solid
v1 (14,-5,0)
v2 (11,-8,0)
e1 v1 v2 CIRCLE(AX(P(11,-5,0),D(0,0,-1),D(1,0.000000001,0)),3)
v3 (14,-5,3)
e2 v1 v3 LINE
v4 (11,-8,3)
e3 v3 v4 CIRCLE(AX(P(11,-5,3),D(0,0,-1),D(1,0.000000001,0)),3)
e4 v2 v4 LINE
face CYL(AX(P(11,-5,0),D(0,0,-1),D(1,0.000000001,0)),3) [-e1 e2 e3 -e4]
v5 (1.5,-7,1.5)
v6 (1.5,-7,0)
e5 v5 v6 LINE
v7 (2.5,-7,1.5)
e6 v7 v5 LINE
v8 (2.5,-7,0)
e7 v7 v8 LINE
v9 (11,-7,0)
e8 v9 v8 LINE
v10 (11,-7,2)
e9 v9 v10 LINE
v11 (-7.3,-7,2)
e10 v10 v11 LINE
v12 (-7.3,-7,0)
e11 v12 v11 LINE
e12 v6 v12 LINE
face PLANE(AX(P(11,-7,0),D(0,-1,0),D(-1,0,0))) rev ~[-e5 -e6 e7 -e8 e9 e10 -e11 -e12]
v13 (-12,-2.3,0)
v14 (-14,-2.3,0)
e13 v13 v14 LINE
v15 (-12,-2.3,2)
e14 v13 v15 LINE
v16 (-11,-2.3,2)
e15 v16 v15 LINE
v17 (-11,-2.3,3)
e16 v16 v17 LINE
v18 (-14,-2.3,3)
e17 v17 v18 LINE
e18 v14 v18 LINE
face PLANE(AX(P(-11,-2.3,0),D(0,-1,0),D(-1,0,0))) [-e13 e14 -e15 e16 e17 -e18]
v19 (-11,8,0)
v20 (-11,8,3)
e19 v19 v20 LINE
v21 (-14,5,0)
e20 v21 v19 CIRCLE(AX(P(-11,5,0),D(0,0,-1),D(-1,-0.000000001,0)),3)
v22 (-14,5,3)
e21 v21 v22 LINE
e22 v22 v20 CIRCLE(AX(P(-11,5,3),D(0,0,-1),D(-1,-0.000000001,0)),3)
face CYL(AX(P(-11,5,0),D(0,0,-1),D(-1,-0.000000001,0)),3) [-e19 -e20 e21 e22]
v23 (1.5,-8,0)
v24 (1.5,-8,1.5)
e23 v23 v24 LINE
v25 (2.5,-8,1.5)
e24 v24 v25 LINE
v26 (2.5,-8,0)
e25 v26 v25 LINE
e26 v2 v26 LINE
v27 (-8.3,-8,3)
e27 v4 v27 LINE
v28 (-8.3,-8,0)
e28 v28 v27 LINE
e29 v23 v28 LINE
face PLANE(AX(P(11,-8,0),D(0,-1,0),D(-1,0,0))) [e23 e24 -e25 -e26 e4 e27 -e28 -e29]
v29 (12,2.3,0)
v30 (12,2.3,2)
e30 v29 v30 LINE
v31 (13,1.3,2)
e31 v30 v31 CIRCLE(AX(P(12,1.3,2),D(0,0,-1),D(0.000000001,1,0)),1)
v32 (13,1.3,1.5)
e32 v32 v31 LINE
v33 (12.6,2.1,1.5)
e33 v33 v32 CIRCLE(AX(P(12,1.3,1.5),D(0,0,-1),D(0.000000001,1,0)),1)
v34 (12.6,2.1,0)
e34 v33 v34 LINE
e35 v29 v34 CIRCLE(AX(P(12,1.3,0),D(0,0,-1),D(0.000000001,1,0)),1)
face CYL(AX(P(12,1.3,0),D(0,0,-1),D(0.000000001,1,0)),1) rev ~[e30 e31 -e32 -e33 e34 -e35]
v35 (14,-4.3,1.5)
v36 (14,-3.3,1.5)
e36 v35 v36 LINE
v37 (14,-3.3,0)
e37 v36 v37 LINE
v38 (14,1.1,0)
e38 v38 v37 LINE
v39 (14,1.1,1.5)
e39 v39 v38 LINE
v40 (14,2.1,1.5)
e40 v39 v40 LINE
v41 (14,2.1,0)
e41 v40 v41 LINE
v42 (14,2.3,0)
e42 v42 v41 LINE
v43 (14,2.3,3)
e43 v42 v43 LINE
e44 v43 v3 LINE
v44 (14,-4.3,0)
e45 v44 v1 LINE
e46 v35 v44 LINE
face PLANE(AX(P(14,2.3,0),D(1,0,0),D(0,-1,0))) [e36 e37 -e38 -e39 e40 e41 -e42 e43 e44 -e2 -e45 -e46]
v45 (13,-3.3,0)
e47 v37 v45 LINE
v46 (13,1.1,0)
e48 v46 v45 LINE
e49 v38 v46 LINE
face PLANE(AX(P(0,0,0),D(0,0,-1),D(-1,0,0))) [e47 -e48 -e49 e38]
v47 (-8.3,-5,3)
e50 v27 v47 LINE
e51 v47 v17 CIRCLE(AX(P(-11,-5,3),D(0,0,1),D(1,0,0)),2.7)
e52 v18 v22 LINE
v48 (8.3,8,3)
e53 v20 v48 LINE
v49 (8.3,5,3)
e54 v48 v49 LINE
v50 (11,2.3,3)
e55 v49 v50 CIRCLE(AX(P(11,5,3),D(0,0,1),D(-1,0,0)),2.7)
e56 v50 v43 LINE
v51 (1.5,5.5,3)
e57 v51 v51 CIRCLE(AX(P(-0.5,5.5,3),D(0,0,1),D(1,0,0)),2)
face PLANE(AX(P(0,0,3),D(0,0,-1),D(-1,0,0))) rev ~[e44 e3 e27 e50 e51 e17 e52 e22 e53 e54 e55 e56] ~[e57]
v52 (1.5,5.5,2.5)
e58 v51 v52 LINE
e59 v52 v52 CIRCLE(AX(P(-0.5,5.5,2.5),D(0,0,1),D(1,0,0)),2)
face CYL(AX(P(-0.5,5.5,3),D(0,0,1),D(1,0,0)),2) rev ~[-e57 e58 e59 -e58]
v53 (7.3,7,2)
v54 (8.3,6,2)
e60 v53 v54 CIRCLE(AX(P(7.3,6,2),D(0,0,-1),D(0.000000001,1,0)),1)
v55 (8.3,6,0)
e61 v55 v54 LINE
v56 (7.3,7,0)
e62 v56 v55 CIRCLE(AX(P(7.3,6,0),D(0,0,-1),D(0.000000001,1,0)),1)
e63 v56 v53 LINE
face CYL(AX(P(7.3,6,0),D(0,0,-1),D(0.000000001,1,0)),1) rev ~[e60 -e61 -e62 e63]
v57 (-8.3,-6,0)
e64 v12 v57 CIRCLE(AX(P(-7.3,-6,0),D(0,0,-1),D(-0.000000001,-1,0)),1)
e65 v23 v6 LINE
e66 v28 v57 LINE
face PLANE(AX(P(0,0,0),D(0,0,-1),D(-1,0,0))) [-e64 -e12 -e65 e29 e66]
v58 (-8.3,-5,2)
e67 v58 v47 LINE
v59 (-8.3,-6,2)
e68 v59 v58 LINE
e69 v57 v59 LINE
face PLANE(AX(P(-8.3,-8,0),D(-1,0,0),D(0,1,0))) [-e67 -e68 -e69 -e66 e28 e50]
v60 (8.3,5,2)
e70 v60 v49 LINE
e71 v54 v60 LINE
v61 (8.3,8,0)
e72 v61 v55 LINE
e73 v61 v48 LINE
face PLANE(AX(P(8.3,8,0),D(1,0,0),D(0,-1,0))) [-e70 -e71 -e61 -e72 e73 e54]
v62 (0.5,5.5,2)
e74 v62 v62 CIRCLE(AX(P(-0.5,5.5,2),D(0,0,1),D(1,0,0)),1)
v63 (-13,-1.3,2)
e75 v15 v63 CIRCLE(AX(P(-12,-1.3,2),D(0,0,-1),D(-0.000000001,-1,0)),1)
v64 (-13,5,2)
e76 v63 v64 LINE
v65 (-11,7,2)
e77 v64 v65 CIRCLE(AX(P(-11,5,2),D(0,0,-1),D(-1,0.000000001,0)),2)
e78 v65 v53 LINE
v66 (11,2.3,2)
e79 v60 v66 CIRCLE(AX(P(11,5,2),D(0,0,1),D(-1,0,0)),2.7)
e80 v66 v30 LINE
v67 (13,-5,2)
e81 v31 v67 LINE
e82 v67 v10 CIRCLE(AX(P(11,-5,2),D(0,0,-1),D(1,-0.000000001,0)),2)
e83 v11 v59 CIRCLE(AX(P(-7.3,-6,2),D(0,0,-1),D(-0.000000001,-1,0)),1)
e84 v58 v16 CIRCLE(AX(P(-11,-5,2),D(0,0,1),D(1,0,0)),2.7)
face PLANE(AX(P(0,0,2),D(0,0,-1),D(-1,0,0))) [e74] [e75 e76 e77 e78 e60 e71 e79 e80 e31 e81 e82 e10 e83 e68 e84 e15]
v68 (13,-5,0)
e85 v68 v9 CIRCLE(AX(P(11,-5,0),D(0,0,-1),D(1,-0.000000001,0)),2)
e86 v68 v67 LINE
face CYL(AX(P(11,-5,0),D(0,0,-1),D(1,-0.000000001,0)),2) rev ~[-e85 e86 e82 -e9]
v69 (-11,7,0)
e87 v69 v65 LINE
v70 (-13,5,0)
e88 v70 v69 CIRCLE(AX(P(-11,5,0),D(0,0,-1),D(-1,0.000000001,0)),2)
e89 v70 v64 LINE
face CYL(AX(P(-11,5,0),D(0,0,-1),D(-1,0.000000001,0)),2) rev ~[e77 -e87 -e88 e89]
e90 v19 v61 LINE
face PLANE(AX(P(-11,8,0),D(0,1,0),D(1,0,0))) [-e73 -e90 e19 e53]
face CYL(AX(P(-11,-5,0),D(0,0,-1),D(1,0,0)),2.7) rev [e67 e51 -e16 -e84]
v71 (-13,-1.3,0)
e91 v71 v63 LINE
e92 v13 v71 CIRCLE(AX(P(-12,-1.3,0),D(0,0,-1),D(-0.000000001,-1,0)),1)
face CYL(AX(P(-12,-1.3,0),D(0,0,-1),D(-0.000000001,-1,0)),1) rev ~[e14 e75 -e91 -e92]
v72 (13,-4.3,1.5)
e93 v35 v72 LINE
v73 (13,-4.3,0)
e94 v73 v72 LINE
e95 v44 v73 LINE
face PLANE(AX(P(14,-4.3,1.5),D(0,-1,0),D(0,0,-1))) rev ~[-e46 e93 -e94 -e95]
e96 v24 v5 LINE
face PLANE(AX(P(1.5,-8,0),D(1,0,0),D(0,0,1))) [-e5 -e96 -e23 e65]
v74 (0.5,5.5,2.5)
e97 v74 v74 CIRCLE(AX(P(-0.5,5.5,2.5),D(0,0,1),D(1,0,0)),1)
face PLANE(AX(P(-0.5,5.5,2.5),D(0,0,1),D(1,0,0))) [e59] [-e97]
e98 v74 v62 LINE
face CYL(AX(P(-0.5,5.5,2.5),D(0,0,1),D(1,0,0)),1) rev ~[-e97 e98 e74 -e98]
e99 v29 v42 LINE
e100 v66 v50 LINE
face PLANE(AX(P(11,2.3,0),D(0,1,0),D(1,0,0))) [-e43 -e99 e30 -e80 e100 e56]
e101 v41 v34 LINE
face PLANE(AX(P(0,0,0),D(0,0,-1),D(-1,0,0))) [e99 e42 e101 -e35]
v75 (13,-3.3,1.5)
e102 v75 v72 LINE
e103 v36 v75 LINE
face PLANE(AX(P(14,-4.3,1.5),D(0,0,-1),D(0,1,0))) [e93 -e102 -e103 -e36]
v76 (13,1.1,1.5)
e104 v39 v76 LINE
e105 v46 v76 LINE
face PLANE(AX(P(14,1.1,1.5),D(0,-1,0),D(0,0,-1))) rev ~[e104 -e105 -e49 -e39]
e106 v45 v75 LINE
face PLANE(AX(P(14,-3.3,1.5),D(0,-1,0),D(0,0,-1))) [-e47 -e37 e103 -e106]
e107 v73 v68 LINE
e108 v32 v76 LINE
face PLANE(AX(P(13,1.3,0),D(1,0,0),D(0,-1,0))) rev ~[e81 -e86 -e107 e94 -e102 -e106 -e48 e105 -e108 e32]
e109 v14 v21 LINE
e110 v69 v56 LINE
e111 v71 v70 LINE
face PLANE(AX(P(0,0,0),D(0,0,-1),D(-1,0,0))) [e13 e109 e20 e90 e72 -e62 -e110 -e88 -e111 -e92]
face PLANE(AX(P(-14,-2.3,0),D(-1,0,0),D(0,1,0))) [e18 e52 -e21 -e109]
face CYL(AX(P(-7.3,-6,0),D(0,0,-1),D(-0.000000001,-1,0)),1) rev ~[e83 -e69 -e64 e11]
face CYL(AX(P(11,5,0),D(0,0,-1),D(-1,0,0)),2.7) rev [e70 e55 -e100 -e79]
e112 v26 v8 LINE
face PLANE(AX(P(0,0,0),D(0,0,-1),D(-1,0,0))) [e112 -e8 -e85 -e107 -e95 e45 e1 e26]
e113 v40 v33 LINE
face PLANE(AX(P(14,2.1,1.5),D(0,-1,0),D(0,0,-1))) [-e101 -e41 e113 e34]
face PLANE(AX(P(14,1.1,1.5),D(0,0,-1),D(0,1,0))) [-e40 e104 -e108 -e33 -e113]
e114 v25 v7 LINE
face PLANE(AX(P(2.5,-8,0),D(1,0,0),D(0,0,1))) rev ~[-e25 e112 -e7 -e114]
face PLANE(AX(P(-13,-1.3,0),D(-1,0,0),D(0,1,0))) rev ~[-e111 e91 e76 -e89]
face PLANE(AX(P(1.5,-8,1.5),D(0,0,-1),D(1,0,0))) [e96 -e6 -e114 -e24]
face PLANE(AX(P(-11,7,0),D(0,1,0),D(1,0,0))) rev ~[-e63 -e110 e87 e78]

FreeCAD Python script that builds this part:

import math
import FreeCAD as App
import Part
import Sketcher

doc = App.newDocument("Part")
params = doc.addObject("Spreadsheet::Sheet", "Params")
for row, (alias, value) in enumerate([
    ("sketch1_radius", "3 mm"),
    ("sketch1_radius2", "2.7 mm"),
    ("sketch1_width", "19.3 mm"),
    ("sketch1_height", "7.3 mm"),
    ("pad1_length", "3 mm"),
    ("sketch2_radius", "1 mm"),
    ("sketch2_radius2", "2 mm"),
    ("sketch2_radius3", "2.7 mm"),
    ("sketch2_width", "18.3 mm"),
    ("sketch2_height", "6.3 mm"),
    ("pocket1_length", "2 mm"),
    ("sketch3_width", "1 mm"),
    ("sketch3_height", "1.5 mm"),
    ("pocket2_length", "1.4 mm"),
    ("sketch4_width", "1 mm"),
    ("sketch4_height", "1.5 mm"),
    ("sketch5_width", "1 mm"),
    ("sketch5_height", "1.5 mm"),
    ("sketch6_diameter", "4 mm"),
    ("pocket5_length", "0.5 mm"),
    ("sketch7_diameter", "2 mm"),
], start=1):
    params.set(f"A{row}", alias)
    params.set(f"B{row}", "=" + value)
    params.setAlias(f"B{row}", alias)

body = doc.addObject("PartDesign::Body", "Body")

# Sketch on XY plane
sketch1 = body.newObject("Sketcher::SketchObject", "Sketch")
sketch1.AttachmentSupport = (doc.getObject("XY_Plane"), [""])
sketch1.MapMode = "FlatFace"
sketch1.addGeometry([
    Part.LineSegment(App.Vector(8.3, 8, 0), App.Vector(-11, 8, 0)),  # 0
    Part.ArcOfCircle(Part.Circle(App.Vector(-11, 5, 0), App.Vector(0, 0, 1), 3), math.radians(90), math.radians(180)),  # 1
    Part.LineSegment(App.Vector(-14, 5, 0), App.Vector(-14, -2.3, 0)),  # 2
    Part.LineSegment(App.Vector(-14, -2.3, 0), App.Vector(-11, -2.3, 0)),  # 3
    Part.ArcOfCircle(Part.Circle(App.Vector(-11, -5, 0), App.Vector(0, 0, 1), 2.7), math.radians(0), math.radians(90)),  # 4
    Part.LineSegment(App.Vector(-8.3, -5, 0), App.Vector(-8.3, -8, 0)),  # 5
    Part.LineSegment(App.Vector(-8.3, -8, 0), App.Vector(11, -8, 0)),  # 6
    Part.ArcOfCircle(Part.Circle(App.Vector(11, -5, 0), App.Vector(0, 0, 1), 3), math.radians(-90), math.radians(0)),  # 7
    Part.LineSegment(App.Vector(14, -5, 0), App.Vector(14, 2.3, 0)),  # 8
    Part.LineSegment(App.Vector(14, 2.3, 0), App.Vector(11, 2.3, 0)),  # 9
    Part.ArcOfCircle(Part.Circle(App.Vector(11, 5, 0), App.Vector(0, 0, 1), 2.7), math.radians(-180), math.radians(-90)),  # 10
    Part.LineSegment(App.Vector(8.3, 5, 0), App.Vector(8.3, 8, 0)),  # 11
], False)
sketch1.addConstraint([
    Sketcher.Constraint("Tangent", 0, 2, 1, 1),
    Sketcher.Constraint("Tangent", 1, 2, 2, 1),
    Sketcher.Constraint("Coincident", 2, 2, 3, 1),
    Sketcher.Constraint("Tangent", 3, 2, 4, 2),
    Sketcher.Constraint("Tangent", 4, 1, 5, 1),
    Sketcher.Constraint("Coincident", 5, 2, 6, 1),
    Sketcher.Constraint("Tangent", 6, 2, 7, 1),
    Sketcher.Constraint("Tangent", 7, 2, 8, 1),
    Sketcher.Constraint("Coincident", 8, 2, 9, 1),
    Sketcher.Constraint("Tangent", 9, 2, 10, 2),
    Sketcher.Constraint("Tangent", 10, 1, 11, 1),
    Sketcher.Constraint("Coincident", 11, 2, 0, 1),
    Sketcher.Constraint("Horizontal", 0),
    Sketcher.Constraint("Vertical", 2),
    Sketcher.Constraint("Horizontal", 3),
    Sketcher.Constraint("Vertical", 5),
    Sketcher.Constraint("Horizontal", 6),
    Sketcher.Constraint("Vertical", 8),
    Sketcher.Constraint("Horizontal", 9),
    Sketcher.Constraint("Vertical", 11),
    Sketcher.Constraint("Equal", 1, 7),
    Sketcher.Constraint("Equal", 4, 10),
    Sketcher.Constraint("Symmetric", 1, 3, 7, 3, -1, 1),
    Sketcher.Constraint("Symmetric", 4, 3, 10, 3, -1, 1),
    Sketcher.Constraint("Symmetric", 4, 3, 7, 3, -2),
    Sketcher.Constraint("Radius", 1, 3.0),
    Sketcher.Constraint("Radius", 4, 2.7),
    Sketcher.Constraint("DistanceX", 0, 2, 0, 1, 19.3),
    Sketcher.Constraint("DistanceY", 2, 2, 2, 1, 7.3),
])
sketch1.setExpression("Constraints[25]", "Params.sketch1_radius")
sketch1.setExpression("Constraints[26]", "Params.sketch1_radius2")
sketch1.setExpression("Constraints[27]", "Params.sketch1_width")
sketch1.setExpression("Constraints[28]", "Params.sketch1_height")
pad1 = body.newObject("PartDesign::Pad", "Pad")
pad1.Profile = sketch1
pad1.setExpression("Length", "Params.pad1_length")

# Sketch on XY plane
sketch2 = body.newObject("Sketcher::SketchObject", "Sketch001")
sketch2.AttachmentSupport = (doc.getObject("XY_Plane"), [""])
sketch2.MapMode = "FlatFace"
sketch2.addGeometry([
    Part.LineSegment(App.Vector(-11, 7, 0), App.Vector(7.3, 7, 0)),  # 0
    Part.ArcOfCircle(Part.Circle(App.Vector(7.3, 6, 0), App.Vector(0, 0, 1), 1), math.radians(0), math.radians(90)),  # 1
    Part.LineSegment(App.Vector(8.3, 6, 0), App.Vector(8.3, 5, 0)),  # 2
    Part.ArcOfCircle(Part.Circle(App.Vector(11, 5, 0), App.Vector(0, 0, 1), 2.7), math.radians(-180), math.radians(-90)),  # 3
    Part.LineSegment(App.Vector(11, 2.3, 0), App.Vector(12, 2.3, 0)),  # 4
    Part.ArcOfCircle(Part.Circle(App.Vector(12, 1.3, 0), App.Vector(0, 0, 1), 1), math.radians(0), math.radians(90)),  # 5
    Part.LineSegment(App.Vector(13, 1.3, 0), App.Vector(13, -5, 0)),  # 6
    Part.ArcOfCircle(Part.Circle(App.Vector(11, -5, 0), App.Vector(0, 0, 1), 2), math.radians(-90), math.radians(0)),  # 7
    Part.LineSegment(App.Vector(11, -7, 0), App.Vector(-7.3, -7, 0)),  # 8
    Part.ArcOfCircle(Part.Circle(App.Vector(-7.3, -6, 0), App.Vector(0, 0, 1), 1), math.radians(-180), math.radians(-90)),  # 9
    Part.LineSegment(App.Vector(-8.3, -6, 0), App.Vector(-8.3, -5, 0)),  # 10
    Part.ArcOfCircle(Part.Circle(App.Vector(-11, -5, 0), App.Vector(0, 0, 1), 2.7), math.radians(0), math.radians(90)),  # 11
    Part.LineSegment(App.Vector(-11, -2.3, 0), App.Vector(-12, -2.3, 0)),  # 12
    Part.ArcOfCircle(Part.Circle(App.Vector(-12, -1.3, 0), App.Vector(0, 0, 1), 1), math.radians(-180), math.radians(-90)),  # 13
    Part.LineSegment(App.Vector(-13, -1.3, 0), App.Vector(-13, 5, 0)),  # 14
    Part.ArcOfCircle(Part.Circle(App.Vector(-11, 5, 0), App.Vector(0, 0, 1), 2), math.radians(90), math.radians(180)),  # 15
], False)
sketch2.addConstraint([
    Sketcher.Constraint("Tangent", 0, 2, 1, 2),
    Sketcher.Constraint("Tangent", 1, 1, 2, 1),
    Sketcher.Constraint("Tangent", 2, 2, 3, 1),
    Sketcher.Constraint("Tangent", 3, 2, 4, 1),
    Sketcher.Constraint("Tangent", 4, 2, 5, 2),
    Sketcher.Constraint("Tangent", 5, 1, 6, 1),
    Sketcher.Constraint("Tangent", 6, 2, 7, 2),
    Sketcher.Constraint("Tangent", 7, 1, 8, 1),
    Sketcher.Constraint("Tangent", 8, 2, 9, 2),
    Sketcher.Constraint("Tangent", 9, 1, 10, 1),
    Sketcher.Constraint("Tangent", 10, 2, 11, 1),
    Sketcher.Constraint("Tangent", 11, 2, 12, 1),
    Sketcher.Constraint("Tangent", 12, 2, 13, 2),
    Sketcher.Constraint("Tangent", 13, 1, 14, 1),
    Sketcher.Constraint("Tangent", 14, 2, 15, 2),
    Sketcher.Constraint("Tangent", 15, 1, 0, 1),
    Sketcher.Constraint("Horizontal", 0),
    Sketcher.Constraint("Vertical", 2),
    Sketcher.Constraint("Horizontal", 4),
    Sketcher.Constraint("Vertical", 6),
    Sketcher.Constraint("Horizontal", 8),
    Sketcher.Constraint("Vertical", 10),
    Sketcher.Constraint("Horizontal", 12),
    Sketcher.Constraint("Vertical", 14),
    Sketcher.Constraint("Equal", 1, 5),
    Sketcher.Constraint("Equal", 5, 9),
    Sketcher.Constraint("Equal", 3, 11),
    Sketcher.Constraint("Equal", 9, 13),
    Sketcher.Constraint("Equal", 7, 15),
    Sketcher.Constraint("Symmetric", 1, 3, 9, 3, -1, 1),
    Sketcher.Constraint("Symmetric", 5, 3, 13, 3, -1, 1),
    Sketcher.Constraint("Symmetric", 7, 3, 11, 3, -2),
    Sketcher.Constraint("Radius", 1, 1.0),
    Sketcher.Constraint("Radius", 7, 2.0),
    Sketcher.Constraint("Radius", 3, 2.7),
    Sketcher.Constraint("DistanceX", 0, 1, 0, 2, 18.3),
    Sketcher.Constraint("DistanceY", 6, 2, 6, 1, 6.3),
])
sketch2.setExpression("Constraints[32]", "Params.sketch2_radius")
sketch2.setExpression("Constraints[33]", "Params.sketch2_radius2")
sketch2.setExpression("Constraints[34]", "Params.sketch2_radius3")
sketch2.setExpression("Constraints[35]", "Params.sketch2_width")
sketch2.setExpression("Constraints[36]", "Params.sketch2_height")
pocket1 = body.newObject("PartDesign::Pocket", "Pocket")
pocket1.Profile = sketch2
pocket1.setExpression("Length", "Params.pocket1_length")
pocket1.Reversed = True

# Sketch on YZ plane
sketch3 = body.newObject("Sketcher::SketchObject", "Sketch002")
sketch3.AttachmentSupport = (doc.getObject("YZ_Plane"), [""])
sketch3.MapMode = "FlatFace"
sketch3.AttachmentOffset = App.Placement(App.Vector(0, 0, 14), App.Rotation())
sketch3.addGeometry([
    Part.LineSegment(App.Vector(2.1, 1.5, 0), App.Vector(1.1, 1.5, 0)),
    Part.LineSegment(App.Vector(1.1, 1.5, 0), App.Vector(1.1, 0, 0)),
    Part.LineSegment(App.Vector(1.1, 0, 0), App.Vector(2.1, 0, 0)),
    Part.LineSegment(App.Vector(2.1, 0, 0), App.Vector(2.1, 1.5, 0)),
], False)
sketch3.addConstraint([
    Sketcher.Constraint("Coincident", 0, 2, 1, 1),
    Sketcher.Constraint("Coincident", 1, 2, 2, 1),
    Sketcher.Constraint("Coincident", 2, 2, 3, 1),
    Sketcher.Constraint("Coincident", 3, 2, 0, 1),
    Sketcher.Constraint("Horizontal", 0),
    Sketcher.Constraint("Vertical", 1),
    Sketcher.Constraint("Horizontal", 2),
    Sketcher.Constraint("Vertical", 3),
    Sketcher.Constraint("PointOnObject", 1, 2, -1),
    Sketcher.Constraint("DistanceX", 0, 2, 0, 1, 1.0),
    Sketcher.Constraint("DistanceY", 1, 2, 1, 1, 1.5),
    Sketcher.Constraint("DistanceX", -1, 1, 0, 2, 1.1),
])
sketch3.setExpression("Constraints[9]", "Params.sketch3_width")
sketch3.setExpression("Constraints[10]", "Params.sketch3_height")
pocket2 = body.newObject("PartDesign::Pocket", "Pocket001")
pocket2.Profile = sketch3
pocket2.setExpression("Length", "Params.pocket2_length")

# Sketch on YZ plane
sketch4 = body.newObject("Sketcher::SketchObject", "Sketch003")
sketch4.AttachmentSupport = (doc.getObject("YZ_Plane"), [""])
sketch4.MapMode = "FlatFace"
sketch4.AttachmentOffset = App.Placement(App.Vector(0, 0, 14), App.Rotation())
sketch4.addGeometry([
    Part.LineSegment(App.Vector(-3.3, 1.5, 0), App.Vector(-4.3, 1.5, 0)),
    Part.LineSegment(App.Vector(-4.3, 1.5, 0), App.Vector(-4.3, 0, 0)),
    Part.LineSegment(App.Vector(-4.3, 0, 0), App.Vector(-3.3, 0, 0)),
    Part.LineSegment(App.Vector(-3.3, 0, 0), App.Vector(-3.3, 1.5, 0)),
], False)
sketch4.addConstraint([
    Sketcher.Constraint("Coincident", 0, 2, 1, 1),
    Sketcher.Constraint("Coincident", 1, 2, 2, 1),
    Sketcher.Constraint("Coincident", 2, 2, 3, 1),
    Sketcher.Constraint("Coincident", 3, 2, 0, 1),
    Sketcher.Constraint("Horizontal", 0),
    Sketcher.Constraint("Vertical", 1),
    Sketcher.Constraint("Horizontal", 2),
    Sketcher.Constraint("Vertical", 3),
    Sketcher.Constraint("PointOnObject", 1, 2, -1),
    Sketcher.Constraint("DistanceX", 0, 2, 0, 1, 1.0),
    Sketcher.Constraint("DistanceY", 1, 2, 1, 1, 1.5),
    Sketcher.Constraint("DistanceX", 0, 2, -1, 1, 4.3),
])
sketch4.setExpression("Constraints[9]", "Params.sketch4_width")
sketch4.setExpression("Constraints[10]", "Params.sketch4_height")
pocket3 = body.newObject("PartDesign::Pocket", "Pocket002")
pocket3.Profile = sketch4
pocket3.Type = "UpToFirst"

# Sketch on XZ plane
sketch5 = body.newObject("Sketcher::SketchObject", "Sketch004")
sketch5.AttachmentSupport = (doc.getObject("XZ_Plane"), [""])
sketch5.MapMode = "FlatFace"
sketch5.AttachmentOffset = App.Placement(App.Vector(0, 0, 8), App.Rotation())
sketch5.addGeometry([
    Part.LineSegment(App.Vector(1.5, 1.5, 0), App.Vector(1.5, 0, 0)),
    Part.LineSegment(App.Vector(1.5, 0, 0), App.Vector(2.5, 0, 0)),
    Part.LineSegment(App.Vector(2.5, 0, 0), App.Vector(2.5, 1.5, 0)),
    Part.LineSegment(App.Vector(2.5, 1.5, 0), App.Vector(1.5, 1.5, 0)),
], False)
sketch5.addConstraint([
    Sketcher.Constraint("Coincident", 0, 2, 1, 1),
    Sketcher.Constraint("Coincident", 1, 2, 2, 1),
    Sketcher.Constraint("Coincident", 2, 2, 3, 1),
    Sketcher.Constraint("Coincident", 3, 2, 0, 1),
    Sketcher.Constraint("Vertical", 0),
    Sketcher.Constraint("Horizontal", 1),
    Sketcher.Constraint("Vertical", 2),
    Sketcher.Constraint("Horizontal", 3),
    Sketcher.Constraint("PointOnObject", 0, 2, -1),
    Sketcher.Constraint("DistanceX", 1, 1, 1, 2, 1.0),
    Sketcher.Constraint("DistanceY", 0, 2, 0, 1, 1.5),
    Sketcher.Constraint("DistanceX", -1, 1, 0, 2, 1.5),
])
sketch5.setExpression("Constraints[9]", "Params.sketch5_width")
sketch5.setExpression("Constraints[10]", "Params.sketch5_height")
pocket4 = body.newObject("PartDesign::Pocket", "Pocket003")
pocket4.Profile = sketch5
pocket4.Type = "UpToFirst"

# Sketch on XY plane
sketch6 = body.newObject("Sketcher::SketchObject", "Sketch005")
sketch6.AttachmentSupport = (doc.getObject("XY_Plane"), [""])
sketch6.MapMode = "FlatFace"
sketch6.AttachmentOffset = App.Placement(App.Vector(0, 0, 3), App.Rotation())
sketch6.addGeometry(Part.Circle(App.Vector(-0.5, 5.5, 0), App.Vector(0, 0, 1), 2), False)
sketch6.addConstraint([
    Sketcher.Constraint("Diameter", 0, 4.0),
    Sketcher.Constraint("DistanceX", 0, 3, -1, 1, 0.5),
    Sketcher.Constraint("DistanceY", -1, 1, 0, 3, 5.5),
])
sketch6.setExpression("Constraints[0]", "Params.sketch6_diameter")
pocket5 = body.newObject("PartDesign::Pocket", "Pocket004")
pocket5.Profile = sketch6
pocket5.setExpression("Length", "Params.pocket5_length")

# Sketch on XY plane
sketch7 = body.newObject("Sketcher::SketchObject", "Sketch006")
sketch7.AttachmentSupport = (doc.getObject("XY_Plane"), [""])
sketch7.MapMode = "FlatFace"
sketch7.AttachmentOffset = App.Placement(App.Vector(0, 0, 2.5), App.Rotation())
sketch7.addGeometry(Part.Circle(App.Vector(-0.5, 5.5, 0), App.Vector(0, 0, 1), 1), False)
sketch7.addConstraint([
    Sketcher.Constraint("Diameter", 0, 2.0),
    Sketcher.Constraint("DistanceX", 0, 3, -1, 1, 0.5),
    Sketcher.Constraint("DistanceY", -1, 1, 0, 3, 5.5),
])
sketch7.setExpression("Constraints[0]", "Params.sketch7_diameter")
pocket6 = body.newObject("PartDesign::Pocket", "Pocket005")
pocket6.Profile = sketch7
pocket6.Type = "UpToFirst"

doc.recompute()
